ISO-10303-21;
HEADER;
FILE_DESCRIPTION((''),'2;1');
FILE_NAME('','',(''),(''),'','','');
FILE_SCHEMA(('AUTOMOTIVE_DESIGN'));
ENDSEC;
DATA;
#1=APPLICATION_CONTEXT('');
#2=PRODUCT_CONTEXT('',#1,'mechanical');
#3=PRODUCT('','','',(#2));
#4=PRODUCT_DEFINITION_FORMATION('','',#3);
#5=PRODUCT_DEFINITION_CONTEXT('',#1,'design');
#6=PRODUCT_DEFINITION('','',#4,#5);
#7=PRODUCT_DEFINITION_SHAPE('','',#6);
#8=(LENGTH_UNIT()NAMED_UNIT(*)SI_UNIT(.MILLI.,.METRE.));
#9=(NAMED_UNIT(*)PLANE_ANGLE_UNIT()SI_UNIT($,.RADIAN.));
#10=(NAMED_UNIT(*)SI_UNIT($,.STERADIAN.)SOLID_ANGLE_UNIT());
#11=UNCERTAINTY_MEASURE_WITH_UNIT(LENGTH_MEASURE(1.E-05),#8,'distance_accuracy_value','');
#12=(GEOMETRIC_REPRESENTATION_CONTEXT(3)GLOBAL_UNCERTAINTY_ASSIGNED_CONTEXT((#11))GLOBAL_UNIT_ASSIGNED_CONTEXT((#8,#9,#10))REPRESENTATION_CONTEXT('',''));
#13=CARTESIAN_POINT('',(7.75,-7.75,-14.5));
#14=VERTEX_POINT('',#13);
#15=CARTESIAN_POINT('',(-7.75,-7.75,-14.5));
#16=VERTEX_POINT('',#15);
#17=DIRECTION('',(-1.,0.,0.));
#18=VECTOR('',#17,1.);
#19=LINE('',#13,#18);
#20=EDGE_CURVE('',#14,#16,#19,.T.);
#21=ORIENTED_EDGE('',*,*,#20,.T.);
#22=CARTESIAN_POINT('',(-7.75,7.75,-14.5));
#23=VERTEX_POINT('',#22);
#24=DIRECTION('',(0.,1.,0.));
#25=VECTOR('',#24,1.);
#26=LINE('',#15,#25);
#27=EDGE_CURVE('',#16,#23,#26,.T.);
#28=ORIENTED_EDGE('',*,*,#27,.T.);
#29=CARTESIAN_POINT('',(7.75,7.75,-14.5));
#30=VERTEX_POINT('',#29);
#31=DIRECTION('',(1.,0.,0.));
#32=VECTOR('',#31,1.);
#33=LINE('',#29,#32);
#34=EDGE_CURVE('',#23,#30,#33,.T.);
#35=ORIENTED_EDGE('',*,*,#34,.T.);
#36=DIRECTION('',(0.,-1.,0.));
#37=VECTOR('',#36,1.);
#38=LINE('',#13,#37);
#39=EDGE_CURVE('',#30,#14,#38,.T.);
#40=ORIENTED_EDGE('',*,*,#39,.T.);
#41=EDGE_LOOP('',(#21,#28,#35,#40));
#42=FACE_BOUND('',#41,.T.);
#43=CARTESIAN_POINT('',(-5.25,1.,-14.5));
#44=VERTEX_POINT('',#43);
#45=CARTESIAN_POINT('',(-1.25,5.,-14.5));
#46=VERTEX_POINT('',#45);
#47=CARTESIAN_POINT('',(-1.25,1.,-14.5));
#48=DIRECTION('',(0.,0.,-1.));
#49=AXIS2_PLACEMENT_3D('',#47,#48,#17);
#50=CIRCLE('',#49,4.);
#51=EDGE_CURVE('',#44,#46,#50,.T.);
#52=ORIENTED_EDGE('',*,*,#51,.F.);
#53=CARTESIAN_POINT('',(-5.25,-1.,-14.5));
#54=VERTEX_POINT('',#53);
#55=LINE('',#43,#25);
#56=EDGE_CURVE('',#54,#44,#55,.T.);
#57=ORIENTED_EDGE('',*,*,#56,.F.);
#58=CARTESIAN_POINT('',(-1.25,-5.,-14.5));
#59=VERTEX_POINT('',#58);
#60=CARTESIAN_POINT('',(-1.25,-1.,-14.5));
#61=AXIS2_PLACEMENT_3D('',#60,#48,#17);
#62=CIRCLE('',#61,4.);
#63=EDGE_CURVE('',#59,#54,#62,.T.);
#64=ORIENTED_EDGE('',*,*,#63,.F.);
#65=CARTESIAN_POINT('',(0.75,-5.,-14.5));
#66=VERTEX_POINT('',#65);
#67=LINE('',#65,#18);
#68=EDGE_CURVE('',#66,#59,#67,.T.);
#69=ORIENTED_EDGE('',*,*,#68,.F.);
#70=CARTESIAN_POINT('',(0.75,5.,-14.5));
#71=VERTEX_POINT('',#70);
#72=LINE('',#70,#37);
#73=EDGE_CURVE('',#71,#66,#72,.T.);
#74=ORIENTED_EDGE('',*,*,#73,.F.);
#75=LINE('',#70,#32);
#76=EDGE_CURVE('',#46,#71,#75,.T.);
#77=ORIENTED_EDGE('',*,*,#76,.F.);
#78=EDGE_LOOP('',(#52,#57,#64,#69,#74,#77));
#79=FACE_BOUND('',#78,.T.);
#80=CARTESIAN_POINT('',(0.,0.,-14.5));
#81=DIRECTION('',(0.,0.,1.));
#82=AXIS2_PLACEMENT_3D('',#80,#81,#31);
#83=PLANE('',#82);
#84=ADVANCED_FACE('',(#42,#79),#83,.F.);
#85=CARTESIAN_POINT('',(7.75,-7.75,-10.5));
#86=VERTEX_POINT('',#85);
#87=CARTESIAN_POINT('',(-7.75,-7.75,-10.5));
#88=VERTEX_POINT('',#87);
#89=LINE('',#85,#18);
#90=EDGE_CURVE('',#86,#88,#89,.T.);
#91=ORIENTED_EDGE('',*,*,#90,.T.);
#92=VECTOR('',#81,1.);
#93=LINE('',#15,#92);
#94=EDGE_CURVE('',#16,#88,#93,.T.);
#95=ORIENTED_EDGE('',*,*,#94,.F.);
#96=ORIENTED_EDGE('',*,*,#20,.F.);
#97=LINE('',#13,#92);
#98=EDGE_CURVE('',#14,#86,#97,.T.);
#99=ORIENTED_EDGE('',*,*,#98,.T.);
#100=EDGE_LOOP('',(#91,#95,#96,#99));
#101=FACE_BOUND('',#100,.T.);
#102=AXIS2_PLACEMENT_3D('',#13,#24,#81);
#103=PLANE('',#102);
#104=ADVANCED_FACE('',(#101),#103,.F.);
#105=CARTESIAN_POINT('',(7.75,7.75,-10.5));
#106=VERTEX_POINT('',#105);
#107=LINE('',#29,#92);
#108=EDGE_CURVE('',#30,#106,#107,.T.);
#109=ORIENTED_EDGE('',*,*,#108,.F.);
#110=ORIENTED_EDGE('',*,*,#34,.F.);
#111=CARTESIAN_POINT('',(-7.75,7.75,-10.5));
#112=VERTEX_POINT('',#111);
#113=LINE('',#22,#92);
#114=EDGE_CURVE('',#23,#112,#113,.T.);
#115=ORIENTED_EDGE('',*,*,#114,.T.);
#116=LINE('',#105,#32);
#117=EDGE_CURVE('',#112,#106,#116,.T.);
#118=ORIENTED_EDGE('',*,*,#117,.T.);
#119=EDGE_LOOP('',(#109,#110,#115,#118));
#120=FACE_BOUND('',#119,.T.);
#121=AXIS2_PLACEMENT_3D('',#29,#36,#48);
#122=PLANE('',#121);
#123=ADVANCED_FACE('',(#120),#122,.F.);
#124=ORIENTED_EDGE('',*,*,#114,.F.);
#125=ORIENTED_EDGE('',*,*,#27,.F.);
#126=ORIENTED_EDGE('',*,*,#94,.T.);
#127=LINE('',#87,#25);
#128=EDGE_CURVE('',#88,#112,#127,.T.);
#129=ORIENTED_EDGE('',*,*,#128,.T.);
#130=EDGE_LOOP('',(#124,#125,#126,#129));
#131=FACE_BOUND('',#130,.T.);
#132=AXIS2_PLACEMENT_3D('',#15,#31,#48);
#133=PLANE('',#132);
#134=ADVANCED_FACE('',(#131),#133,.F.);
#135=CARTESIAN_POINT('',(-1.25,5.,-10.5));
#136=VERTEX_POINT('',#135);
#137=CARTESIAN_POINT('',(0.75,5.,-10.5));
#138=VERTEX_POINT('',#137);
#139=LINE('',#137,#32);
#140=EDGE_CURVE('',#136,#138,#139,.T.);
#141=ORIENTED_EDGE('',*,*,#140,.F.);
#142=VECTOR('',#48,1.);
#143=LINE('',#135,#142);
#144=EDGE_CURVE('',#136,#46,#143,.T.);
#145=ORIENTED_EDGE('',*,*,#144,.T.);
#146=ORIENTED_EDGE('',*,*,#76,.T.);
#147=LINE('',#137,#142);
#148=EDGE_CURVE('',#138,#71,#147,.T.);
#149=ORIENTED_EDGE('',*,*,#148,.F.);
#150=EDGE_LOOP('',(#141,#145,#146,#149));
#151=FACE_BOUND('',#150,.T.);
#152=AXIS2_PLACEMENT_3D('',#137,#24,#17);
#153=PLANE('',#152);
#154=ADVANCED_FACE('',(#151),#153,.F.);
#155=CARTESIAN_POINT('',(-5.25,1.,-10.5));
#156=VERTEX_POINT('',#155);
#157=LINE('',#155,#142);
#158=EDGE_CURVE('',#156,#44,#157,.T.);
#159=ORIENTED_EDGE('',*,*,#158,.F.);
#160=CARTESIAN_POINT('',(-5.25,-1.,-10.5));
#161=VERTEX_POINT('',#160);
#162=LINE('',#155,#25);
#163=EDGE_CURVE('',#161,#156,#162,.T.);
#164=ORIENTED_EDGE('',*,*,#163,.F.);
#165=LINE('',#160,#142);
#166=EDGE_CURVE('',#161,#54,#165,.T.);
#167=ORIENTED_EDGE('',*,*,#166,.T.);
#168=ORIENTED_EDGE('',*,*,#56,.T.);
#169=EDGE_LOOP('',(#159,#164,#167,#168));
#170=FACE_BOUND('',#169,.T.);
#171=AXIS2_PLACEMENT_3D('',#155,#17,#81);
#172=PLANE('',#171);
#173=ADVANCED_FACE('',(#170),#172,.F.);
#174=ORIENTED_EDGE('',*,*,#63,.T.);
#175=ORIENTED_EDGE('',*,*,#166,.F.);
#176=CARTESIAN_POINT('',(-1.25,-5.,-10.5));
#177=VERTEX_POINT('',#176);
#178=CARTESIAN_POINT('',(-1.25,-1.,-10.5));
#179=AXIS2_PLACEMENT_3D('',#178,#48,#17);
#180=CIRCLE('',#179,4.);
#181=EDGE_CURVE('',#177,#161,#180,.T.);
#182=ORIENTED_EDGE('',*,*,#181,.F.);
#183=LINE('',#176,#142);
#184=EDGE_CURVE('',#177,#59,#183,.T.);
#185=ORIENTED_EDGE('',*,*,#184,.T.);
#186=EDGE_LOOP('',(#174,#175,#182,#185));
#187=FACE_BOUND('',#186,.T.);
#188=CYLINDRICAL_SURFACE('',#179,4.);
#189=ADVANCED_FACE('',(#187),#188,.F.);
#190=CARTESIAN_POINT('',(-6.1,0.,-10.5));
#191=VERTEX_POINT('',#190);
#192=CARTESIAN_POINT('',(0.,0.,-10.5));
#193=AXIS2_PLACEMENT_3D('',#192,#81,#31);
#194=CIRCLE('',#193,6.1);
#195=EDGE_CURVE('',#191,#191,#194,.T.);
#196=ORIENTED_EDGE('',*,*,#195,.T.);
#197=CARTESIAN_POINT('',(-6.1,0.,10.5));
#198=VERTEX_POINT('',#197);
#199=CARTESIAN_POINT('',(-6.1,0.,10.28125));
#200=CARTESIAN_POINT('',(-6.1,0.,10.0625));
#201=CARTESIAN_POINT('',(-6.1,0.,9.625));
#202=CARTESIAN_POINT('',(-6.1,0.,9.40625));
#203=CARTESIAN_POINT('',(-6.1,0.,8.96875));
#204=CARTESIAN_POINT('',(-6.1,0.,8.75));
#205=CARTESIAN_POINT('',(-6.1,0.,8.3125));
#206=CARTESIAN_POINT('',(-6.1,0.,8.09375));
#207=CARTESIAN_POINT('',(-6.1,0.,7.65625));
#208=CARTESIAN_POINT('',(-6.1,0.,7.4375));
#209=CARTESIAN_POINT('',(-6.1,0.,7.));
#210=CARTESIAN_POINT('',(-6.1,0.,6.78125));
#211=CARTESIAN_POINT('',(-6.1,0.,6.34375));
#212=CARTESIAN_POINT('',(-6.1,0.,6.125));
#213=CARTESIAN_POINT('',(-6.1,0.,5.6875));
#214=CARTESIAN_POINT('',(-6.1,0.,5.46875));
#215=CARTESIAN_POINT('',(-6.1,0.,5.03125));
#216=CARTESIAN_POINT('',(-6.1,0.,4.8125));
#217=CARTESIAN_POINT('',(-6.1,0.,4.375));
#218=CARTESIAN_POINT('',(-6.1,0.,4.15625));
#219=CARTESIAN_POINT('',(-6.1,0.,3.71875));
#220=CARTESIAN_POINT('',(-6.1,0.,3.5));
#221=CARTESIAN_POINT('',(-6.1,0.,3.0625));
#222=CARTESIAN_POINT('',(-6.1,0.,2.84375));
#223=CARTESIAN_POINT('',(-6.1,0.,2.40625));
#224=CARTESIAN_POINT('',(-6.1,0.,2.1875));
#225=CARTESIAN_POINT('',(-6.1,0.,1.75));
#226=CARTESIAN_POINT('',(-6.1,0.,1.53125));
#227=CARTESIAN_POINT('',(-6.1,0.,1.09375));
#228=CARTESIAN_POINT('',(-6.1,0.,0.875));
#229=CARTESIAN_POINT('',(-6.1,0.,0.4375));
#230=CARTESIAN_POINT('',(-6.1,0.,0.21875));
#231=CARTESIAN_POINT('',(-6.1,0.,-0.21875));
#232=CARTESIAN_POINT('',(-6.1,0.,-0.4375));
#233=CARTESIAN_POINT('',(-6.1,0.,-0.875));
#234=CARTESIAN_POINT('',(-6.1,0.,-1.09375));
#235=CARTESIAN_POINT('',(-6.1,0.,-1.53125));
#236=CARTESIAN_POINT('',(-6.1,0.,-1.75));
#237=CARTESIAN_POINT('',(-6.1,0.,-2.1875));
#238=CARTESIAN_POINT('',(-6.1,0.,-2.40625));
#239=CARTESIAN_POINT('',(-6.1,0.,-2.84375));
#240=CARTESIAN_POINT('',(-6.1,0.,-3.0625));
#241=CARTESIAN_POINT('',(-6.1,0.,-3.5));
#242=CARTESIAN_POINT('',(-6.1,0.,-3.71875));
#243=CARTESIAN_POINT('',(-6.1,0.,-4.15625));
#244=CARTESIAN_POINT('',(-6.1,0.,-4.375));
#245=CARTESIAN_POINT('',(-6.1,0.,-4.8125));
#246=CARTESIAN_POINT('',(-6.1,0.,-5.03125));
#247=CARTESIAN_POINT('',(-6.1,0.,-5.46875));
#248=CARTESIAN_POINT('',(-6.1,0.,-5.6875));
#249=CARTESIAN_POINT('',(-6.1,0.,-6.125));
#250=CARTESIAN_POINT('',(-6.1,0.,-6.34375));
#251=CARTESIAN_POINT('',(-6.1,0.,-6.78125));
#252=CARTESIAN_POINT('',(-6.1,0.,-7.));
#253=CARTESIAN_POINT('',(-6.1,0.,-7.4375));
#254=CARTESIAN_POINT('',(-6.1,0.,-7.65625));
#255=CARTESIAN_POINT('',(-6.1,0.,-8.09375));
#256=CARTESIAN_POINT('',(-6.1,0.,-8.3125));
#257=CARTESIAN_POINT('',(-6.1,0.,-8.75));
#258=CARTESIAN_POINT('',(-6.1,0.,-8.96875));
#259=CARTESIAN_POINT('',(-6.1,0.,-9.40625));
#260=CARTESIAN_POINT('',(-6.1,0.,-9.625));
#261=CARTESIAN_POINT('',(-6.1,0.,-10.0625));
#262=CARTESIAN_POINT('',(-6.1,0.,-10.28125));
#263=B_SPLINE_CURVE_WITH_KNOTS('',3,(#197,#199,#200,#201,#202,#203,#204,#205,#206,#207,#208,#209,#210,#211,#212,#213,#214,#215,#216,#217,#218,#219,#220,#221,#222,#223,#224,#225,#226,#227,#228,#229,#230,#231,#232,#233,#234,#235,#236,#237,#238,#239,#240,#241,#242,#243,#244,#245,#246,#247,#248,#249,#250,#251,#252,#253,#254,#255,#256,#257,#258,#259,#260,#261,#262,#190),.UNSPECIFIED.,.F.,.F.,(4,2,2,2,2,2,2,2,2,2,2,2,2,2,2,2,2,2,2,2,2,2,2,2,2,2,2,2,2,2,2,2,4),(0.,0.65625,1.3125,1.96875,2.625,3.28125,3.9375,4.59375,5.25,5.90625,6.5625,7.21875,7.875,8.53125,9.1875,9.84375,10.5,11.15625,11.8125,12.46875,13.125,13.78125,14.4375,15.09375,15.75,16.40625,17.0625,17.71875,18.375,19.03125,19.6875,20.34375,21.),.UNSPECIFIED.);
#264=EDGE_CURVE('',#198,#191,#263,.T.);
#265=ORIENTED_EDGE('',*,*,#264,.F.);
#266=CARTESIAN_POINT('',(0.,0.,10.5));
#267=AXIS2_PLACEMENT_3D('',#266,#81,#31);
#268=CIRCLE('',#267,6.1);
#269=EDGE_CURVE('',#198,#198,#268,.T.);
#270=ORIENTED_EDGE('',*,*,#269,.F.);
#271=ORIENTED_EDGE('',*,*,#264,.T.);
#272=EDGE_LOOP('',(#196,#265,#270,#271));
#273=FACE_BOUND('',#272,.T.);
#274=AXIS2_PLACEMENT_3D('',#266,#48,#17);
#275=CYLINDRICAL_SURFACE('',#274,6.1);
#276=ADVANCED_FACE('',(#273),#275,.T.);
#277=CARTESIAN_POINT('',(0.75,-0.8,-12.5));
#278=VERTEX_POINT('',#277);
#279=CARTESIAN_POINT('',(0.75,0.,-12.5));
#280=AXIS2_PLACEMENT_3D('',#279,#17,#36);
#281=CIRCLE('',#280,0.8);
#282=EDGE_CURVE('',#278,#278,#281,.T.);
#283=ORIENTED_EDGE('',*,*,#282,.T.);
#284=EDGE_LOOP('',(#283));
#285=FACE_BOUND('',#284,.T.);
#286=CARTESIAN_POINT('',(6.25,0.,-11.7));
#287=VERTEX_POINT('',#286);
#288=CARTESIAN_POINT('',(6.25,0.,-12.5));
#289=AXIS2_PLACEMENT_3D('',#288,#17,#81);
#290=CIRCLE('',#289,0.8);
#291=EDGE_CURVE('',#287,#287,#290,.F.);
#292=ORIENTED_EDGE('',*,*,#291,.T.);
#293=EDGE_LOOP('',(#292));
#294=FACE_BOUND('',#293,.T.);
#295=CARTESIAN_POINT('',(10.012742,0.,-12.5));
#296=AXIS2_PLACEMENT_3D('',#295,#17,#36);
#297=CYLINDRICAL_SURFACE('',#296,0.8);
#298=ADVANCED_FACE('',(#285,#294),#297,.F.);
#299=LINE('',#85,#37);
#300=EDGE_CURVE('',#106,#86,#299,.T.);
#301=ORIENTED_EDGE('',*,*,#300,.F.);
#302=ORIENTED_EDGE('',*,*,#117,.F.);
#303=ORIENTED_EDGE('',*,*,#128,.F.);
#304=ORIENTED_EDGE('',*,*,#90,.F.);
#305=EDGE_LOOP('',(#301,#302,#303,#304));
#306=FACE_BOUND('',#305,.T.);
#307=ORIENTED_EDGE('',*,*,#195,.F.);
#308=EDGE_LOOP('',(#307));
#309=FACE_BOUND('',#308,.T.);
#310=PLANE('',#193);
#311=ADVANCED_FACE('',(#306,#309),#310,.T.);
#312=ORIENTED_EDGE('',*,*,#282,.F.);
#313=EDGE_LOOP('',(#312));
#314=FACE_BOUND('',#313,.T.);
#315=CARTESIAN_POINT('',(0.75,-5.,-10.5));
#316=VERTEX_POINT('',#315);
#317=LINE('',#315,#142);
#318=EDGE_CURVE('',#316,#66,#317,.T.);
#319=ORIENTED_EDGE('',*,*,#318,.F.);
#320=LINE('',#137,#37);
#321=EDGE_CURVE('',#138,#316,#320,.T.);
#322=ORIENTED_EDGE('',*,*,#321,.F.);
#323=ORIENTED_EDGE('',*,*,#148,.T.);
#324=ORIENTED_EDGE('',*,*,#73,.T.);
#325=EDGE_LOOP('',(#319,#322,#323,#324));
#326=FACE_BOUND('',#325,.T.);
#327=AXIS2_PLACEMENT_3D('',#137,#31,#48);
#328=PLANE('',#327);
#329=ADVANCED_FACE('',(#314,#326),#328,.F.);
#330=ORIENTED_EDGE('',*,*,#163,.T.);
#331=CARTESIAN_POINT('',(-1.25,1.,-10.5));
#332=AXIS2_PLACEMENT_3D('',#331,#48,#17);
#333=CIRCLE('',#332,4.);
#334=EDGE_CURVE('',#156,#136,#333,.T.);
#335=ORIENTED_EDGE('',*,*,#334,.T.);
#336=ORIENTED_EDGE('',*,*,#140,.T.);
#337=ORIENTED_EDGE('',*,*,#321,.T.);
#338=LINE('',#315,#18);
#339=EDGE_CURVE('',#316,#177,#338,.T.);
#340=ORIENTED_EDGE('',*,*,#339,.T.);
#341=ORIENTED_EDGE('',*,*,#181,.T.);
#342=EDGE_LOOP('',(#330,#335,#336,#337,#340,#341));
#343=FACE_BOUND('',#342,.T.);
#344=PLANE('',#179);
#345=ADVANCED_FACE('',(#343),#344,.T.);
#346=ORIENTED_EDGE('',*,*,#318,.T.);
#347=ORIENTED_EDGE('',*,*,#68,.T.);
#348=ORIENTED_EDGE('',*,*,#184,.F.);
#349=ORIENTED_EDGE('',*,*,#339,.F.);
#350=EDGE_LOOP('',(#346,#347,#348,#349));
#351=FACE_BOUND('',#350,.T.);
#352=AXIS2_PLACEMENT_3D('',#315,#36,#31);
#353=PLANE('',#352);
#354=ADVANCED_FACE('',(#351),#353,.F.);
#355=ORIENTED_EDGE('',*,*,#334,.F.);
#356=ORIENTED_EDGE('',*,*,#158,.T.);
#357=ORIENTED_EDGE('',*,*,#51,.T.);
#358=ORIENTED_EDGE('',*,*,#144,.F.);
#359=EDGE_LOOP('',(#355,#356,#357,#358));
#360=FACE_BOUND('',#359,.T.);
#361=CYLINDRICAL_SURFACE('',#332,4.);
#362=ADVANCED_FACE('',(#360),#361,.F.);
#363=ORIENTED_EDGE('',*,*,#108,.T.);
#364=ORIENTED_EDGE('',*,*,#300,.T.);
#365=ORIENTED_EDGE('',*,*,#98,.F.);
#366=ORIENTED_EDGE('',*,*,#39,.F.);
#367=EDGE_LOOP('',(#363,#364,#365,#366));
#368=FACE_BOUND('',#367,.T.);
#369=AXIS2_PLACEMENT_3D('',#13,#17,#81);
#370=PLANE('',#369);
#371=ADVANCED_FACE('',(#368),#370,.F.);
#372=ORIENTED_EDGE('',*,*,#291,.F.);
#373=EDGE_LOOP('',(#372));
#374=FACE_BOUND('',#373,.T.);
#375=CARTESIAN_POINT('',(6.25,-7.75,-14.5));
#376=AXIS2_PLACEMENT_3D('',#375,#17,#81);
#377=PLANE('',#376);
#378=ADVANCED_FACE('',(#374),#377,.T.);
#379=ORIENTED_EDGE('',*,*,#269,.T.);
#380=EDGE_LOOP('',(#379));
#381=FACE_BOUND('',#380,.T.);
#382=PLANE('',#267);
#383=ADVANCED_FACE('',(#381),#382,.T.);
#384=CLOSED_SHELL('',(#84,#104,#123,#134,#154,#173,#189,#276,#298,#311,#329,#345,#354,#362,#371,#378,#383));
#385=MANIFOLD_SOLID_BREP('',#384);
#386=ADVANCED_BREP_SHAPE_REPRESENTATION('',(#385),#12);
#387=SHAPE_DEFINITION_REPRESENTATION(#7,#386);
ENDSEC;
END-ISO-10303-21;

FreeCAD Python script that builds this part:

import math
import FreeCAD as App
import Part
import Sketcher
Q = App.Units.Quantity

doc = App.newDocument("Part")
params = doc.addObject("Spreadsheet::Sheet", "Params")
for row, (alias, value) in enumerate([
    ("sketch1_diameter", "12.2 mm"),
    ("pad1_length", "21 mm"),
    ("sketch2_width", "15.5 mm"),
    ("pad2_length", "4 mm"),
    ("sketch3_radius", "4 mm"),
    ("sketch3_width", "2 mm"),
    ("pocket1_length", "4 mm"),
    ("sketch4_diameter", "1.6 mm"),
    ("pocket2_length", "5.5 mm"),
], start=1):
    params.set(f"A{row}", alias)
    params.set(f"B{row}", "=" + value)
    params.setAlias(f"B{row}", alias)

body = doc.addObject("PartDesign::Body", "Body")

# Sketch on XY plane
sketch1 = body.newObject("Sketcher::SketchObject", "Sketch")
sketch1.AttachmentSupport = (doc.getObject("XY_Plane"), [""])
sketch1.MapMode = "FlatFace"
sketch1.addGeometry(Part.Circle(App.Vector(0, 0, 0), App.Vector(0, 0, 1), 6.1), False)
sketch1.addConstraint([
    Sketcher.Constraint("Coincident", 0, 3, -1, 1),
    Sketcher.Constraint("Diameter", 0, Q("12.2 mm")),
])
sketch1.setExpression("Constraints[1]", "Params.sketch1_diameter")
pad1 = body.newObject("PartDesign::Pad", "Pad")
pad1.Profile = sketch1
pad1.setExpression("Length", "Params.pad1_length")
pad1.Midplane = True

# Sketch on XY plane
sketch2 = body.newObject("Sketcher::SketchObject", "Sketch001")
sketch2.AttachmentSupport = (doc.getObject("XY_Plane"), [""])
sketch2.MapMode = "FlatFace"
sketch2.AttachmentOffset = App.Placement(App.Vector(0, 0, -10.5), App.Rotation())
sketch2.addGeometry([
    Part.LineSegment(App.Vector(7.75, 7.75, 0), App.Vector(7.75, -7.75, 0)),
    Part.LineSegment(App.Vector(7.75, -7.75, 0), App.Vector(-7.75, -7.75, 0)),
    Part.LineSegment(App.Vector(-7.75, -7.75, 0), App.Vector(-7.75, 7.75, 0)),
    Part.LineSegment(App.Vector(-7.75, 7.75, 0), App.Vector(7.75, 7.75, 0)),
], False)
sketch2.addConstraint([
    Sketcher.Constraint("Coincident", 0, 2, 1, 1),
    Sketcher.Constraint("Coincident", 1, 2, 2, 1),
    Sketcher.Constraint("Coincident", 2, 2, 3, 1),
    Sketcher.Constraint("Coincident", 3, 2, 0, 1),
    Sketcher.Constraint("Vertical", 0),
    Sketcher.Constraint("Horizontal", 1),
    Sketcher.Constraint("Vertical", 2),
    Sketcher.Constraint("Horizontal", 3),
    Sketcher.Constraint("Symmetric", 0, 2, 2, 2, -1, 1),
    Sketcher.Constraint("Equal", 3, 0),
    Sketcher.Constraint("DistanceX", 1, 2, 1, 1, Q("15.5 mm")),
])
sketch2.setExpression("Constraints[10]", "Params.sketch2_width")
pad2 = body.newObject("PartDesign::Pad", "Pad001")
pad2.Profile = sketch2
pad2.setExpression("Length", "Params.pad2_length")
pad2.Reversed = True

# Sketch on XY plane
sketch3 = body.newObject("Sketcher::SketchObject", "Sketch002")
sketch3.AttachmentSupport = (doc.getObject("XY_Plane"), [""])
sketch3.MapMode = "FlatFace"
sketch3.AttachmentOffset = App.Placement(App.Vector(0, 0, -14.5), App.Rotation())
sketch3.addGeometry([
    Part.LineSegment(App.Vector(-1.25, 5, 0), App.Vector(0.75, 5, 0)),  # 0
    Part.LineSegment(App.Vector(0.75, 5, 0), App.Vector(0.75, -5, 0)),  # 1
    Part.LineSegment(App.Vector(0.75, -5, 0), App.Vector(-1.25, -5, 0)),  # 2
    Part.ArcOfCircle(Part.Circle(App.Vector(-1.25, -1, 0), App.Vector(0, 0, 1), 4), math.radians(180), math.radians(270)),  # 3
    Part.LineSegment(App.Vector(-5.25, -1, 0), App.Vector(-5.25, 1, 0)),  # 4
    Part.ArcOfCircle(Part.Circle(App.Vector(-1.25, 1, 0), App.Vector(0, 0, 1), 4), math.radians(90), math.radians(180)),  # 5
], False)
sketch3.addConstraint([
    Sketcher.Constraint("Coincident", 0, 2, 1, 1),
    Sketcher.Constraint("Coincident", 1, 2, 2, 1),
    Sketcher.Constraint("Tangent", 2, 2, 3, 2),
    Sketcher.Constraint("Tangent", 3, 1, 4, 1),
    Sketcher.Constraint("Tangent", 4, 2, 5, 2),
    Sketcher.Constraint("Tangent", 5, 1, 0, 1),
    Sketcher.Constraint("Horizontal", 0),
    Sketcher.Constraint("Vertical", 1),
    Sketcher.Constraint("Horizontal", 2),
    Sketcher.Constraint("Vertical", 4),
    Sketcher.Constraint("Equal", 3, 5),
    Sketcher.Constraint("Equal", 2, 4),
    Sketcher.Constraint("Radius", 3, Q("4 mm")),
    Sketcher.Constraint("DistanceX", 0, 1, 0, 2, Q("2 mm")),
    Sketcher.Constraint("DistanceY", 3, 3, -1, 1, Q("1 mm")),
    Sketcher.Constraint("DistanceX", 3, 3, -1, 1, Q("1.25 mm")),
])
sketch3.setExpression("Constraints[12]", "Params.sketch3_radius")
sketch3.setExpression("Constraints[13]", "Params.sketch3_width")
pocket1 = body.newObject("PartDesign::Pocket", "Pocket")
pocket1.Profile = sketch3
pocket1.setExpression("Length", "Params.pocket1_length")
pocket1.Reversed = True

# Sketch on YZ plane
sketch4 = body.newObject("Sketcher::SketchObject", "Sketch003")
sketch4.AttachmentSupport = (doc.getObject("YZ_Plane"), [""])
sketch4.MapMode = "FlatFace"
sketch4.AttachmentOffset = App.Placement(App.Vector(0, 0, 0.75), App.Rotation())
sketch4.addGeometry(Part.Circle(App.Vector(0, -12.5, 0), App.Vector(0, 0, 1), 0.8), False)
sketch4.addConstraint([
    Sketcher.Constraint("PointOnObject", 0, 3, -2),
    Sketcher.Constraint("Diameter", 0, Q("1.6 mm")),
    Sketcher.Constraint("DistanceY", 0, 3, -1, 1, Q("12.5 mm")),
])
sketch4.setExpression("Constraints[1]", "Params.sketch4_diameter")
pocket2 = body.newObject("PartDesign::Pocket", "Pocket001")
pocket2.Profile = sketch4
pocket2.setExpression("Length", "Params.pocket2_length")
pocket2.Reversed = True

doc.recompute()
